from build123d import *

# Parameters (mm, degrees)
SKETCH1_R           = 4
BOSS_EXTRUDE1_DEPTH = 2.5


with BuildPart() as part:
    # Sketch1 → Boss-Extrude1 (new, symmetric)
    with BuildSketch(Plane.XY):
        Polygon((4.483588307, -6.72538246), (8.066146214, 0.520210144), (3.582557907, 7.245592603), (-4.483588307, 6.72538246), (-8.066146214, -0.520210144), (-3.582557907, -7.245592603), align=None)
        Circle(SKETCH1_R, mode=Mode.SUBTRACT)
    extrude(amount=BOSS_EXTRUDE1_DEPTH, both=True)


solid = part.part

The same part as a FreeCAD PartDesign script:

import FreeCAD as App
import Part
import Sketcher

V = App.Vector
Q = App.Units.Quantity


def add_polygon(sketch, points):
    """Adds a closed chain of lines whose ends are joined by coincident constraints."""
    first, n = sketch.GeometryCount, len(points)
    for a, b in zip(points, points[1:] + points[:1]):
        sketch.addGeometry(Part.LineSegment(App.Vector(*a, 0), App.Vector(*b, 0)), False)
    for i in range(n):
        sketch.addConstraint(Sketcher.Constraint("Coincident", first + i, 2, first + (i + 1) % n, 1))

doc = App.newDocument("Part")
params = doc.addObject("Spreadsheet::Sheet", "Params")
for row, (alias, value) in enumerate([
    ("sketch1_diameter", "8 mm"),
    ("pad1_length", "5 mm"),
], start=1):
    params.set(f"A{row}", alias)
    params.set(f"B{row}", "=" + value)
    params.setAlias(f"B{row}", alias)

body = doc.addObject("PartDesign::Body", "Body")

# Sketch on XY plane
sketch1 = body.newObject("Sketcher::SketchObject", "Sketch")
sketch1.AttachmentSupport = (doc.getObject("XY_Plane"), [""])
sketch1.MapMode = "FlatFace"
add_polygon(sketch1, [(4.5, -6.7), (8.1, 0.5), (3.6, 7.2), (-4.5, 6.7), (-8.1, -0.5), (-3.6, -7.2)])  # lines 0-5
sketch1.addGeometry(Part.Circle(V(0, 0, 0), V(0, 0, 1), 4), False)  # 6
sketch1.addConstraint([
    Sketcher.Constraint("Coincident", 6, 3, -1, 1),
    Sketcher.Constraint("Symmetric", 0, 2, 3, 2, -1, 1),
    Sketcher.Constraint("Symmetric", 1, 2, 4, 2, -1, 1),
    Sketcher.Constraint("Symmetric", 2, 2, 5, 2, -1, 1),
    Sketcher.Constraint("Equal", 0, 1),
    Sketcher.Constraint("Equal", 1, 2),
    Sketcher.Constraint("Diameter", 6, Q("8 mm")),
    Sketcher.Constraint("DistanceY", -1, 1, 0, 2, Q("0.52021 mm")),
    Sketcher.Constraint("DistanceX", 2, 2, -1, 1, Q("4.483588 mm")),
    Sketcher.Constraint("DistanceX", 1, 2, 0, 2, Q("4.483588 mm")),
    Sketcher.Constraint("DistanceY", 2, 2, 1, 2, Q("0.52021 mm")),
])
sketch1.setExpression("Constraints[12]", "Params.sketch1_diameter")
pad1 = body.newObject("PartDesign::Pad", "Pad")
pad1.Profile = sketch1
pad1.setExpression("Length", "Params.pad1_length")
pad1.Midplane = True

doc.recompute()
